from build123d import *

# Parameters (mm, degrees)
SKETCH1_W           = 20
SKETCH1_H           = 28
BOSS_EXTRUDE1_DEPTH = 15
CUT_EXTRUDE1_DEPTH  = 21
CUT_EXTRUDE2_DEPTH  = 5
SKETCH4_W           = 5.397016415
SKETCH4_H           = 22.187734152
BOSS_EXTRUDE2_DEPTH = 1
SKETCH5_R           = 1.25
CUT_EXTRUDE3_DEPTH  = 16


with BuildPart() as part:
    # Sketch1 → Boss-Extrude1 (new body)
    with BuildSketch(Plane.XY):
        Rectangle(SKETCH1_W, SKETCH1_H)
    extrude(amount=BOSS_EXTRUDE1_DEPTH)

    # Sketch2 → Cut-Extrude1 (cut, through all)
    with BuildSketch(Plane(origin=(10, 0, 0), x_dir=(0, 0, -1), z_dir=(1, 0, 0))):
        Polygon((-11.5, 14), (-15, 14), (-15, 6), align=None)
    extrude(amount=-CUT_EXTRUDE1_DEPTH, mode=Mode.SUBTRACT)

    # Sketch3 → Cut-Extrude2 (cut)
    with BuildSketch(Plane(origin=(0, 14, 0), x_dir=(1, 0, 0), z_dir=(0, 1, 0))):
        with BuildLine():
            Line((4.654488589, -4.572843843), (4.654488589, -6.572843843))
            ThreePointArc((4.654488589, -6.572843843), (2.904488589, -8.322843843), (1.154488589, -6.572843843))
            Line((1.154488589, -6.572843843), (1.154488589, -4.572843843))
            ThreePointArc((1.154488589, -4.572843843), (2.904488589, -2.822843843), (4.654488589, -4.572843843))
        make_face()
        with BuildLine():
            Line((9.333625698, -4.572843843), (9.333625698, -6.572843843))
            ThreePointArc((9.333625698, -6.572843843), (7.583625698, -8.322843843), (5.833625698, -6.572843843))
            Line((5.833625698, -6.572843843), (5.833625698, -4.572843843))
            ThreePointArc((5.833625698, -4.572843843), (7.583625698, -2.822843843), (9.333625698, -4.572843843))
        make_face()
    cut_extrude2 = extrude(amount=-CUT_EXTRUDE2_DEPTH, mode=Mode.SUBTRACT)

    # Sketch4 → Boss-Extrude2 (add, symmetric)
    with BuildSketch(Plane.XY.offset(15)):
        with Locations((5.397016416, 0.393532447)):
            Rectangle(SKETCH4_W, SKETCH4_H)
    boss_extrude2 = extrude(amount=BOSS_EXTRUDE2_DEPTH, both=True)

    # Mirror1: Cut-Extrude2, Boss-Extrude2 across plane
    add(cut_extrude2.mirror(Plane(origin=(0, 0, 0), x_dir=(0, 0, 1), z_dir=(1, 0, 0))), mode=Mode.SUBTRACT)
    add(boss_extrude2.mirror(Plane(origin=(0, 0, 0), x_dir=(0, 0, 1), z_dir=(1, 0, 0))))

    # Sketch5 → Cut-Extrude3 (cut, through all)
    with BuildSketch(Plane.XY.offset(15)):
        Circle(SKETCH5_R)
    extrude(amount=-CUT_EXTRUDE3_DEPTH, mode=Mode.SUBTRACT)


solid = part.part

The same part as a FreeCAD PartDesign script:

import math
import FreeCAD as App
import Part
import Sketcher

V = App.Vector


def add_polygon(sketch, points):
    """Adds a closed chain of lines whose ends are joined by coincident constraints."""
    first, n = sketch.GeometryCount, len(points)
    for a, b in zip(points, points[1:] + points[:1]):
        sketch.addGeometry(Part.LineSegment(App.Vector(*a, 0), App.Vector(*b, 0)), False)
    for i in range(n):
        sketch.addConstraint(Sketcher.Constraint("Coincident", first + i, 2, first + (i + 1) % n, 1))

doc = App.newDocument("Part")
body = doc.addObject("PartDesign::Body", "Body")

sketch1 = body.newObject("Sketcher::SketchObject", "Sketch")
sketch1.AttachmentSupport = (doc.getObject("XY_Plane"), [""])
sketch1.MapMode = "FlatFace"
add_polygon(sketch1, [(-10, 14), (-10, -14), (10, -14), (10, 14)])
sketch1.addConstraint(Sketcher.Constraint("Vertical", 0))
sketch1.addConstraint(Sketcher.Constraint("Horizontal", 1))
sketch1.addConstraint(Sketcher.Constraint("Vertical", 2))
sketch1.addConstraint(Sketcher.Constraint("Horizontal", 3))
sketch1.addConstraint(Sketcher.Constraint("Symmetric", 0, 2, 2, 2, -1, 1))
sketch1.addConstraint(Sketcher.Constraint("DistanceX", 1, 1, 1, 2, 20.0))
sketch1.addConstraint(Sketcher.Constraint("DistanceY", 0, 2, 0, 1, 28.0))
pad1 = body.newObject("PartDesign::Pad", "Pad")
pad1.Profile = sketch1
pad1.Length = 15

sketch2 = body.newObject("Sketcher::SketchObject", "Sketch001")
sketch2.AttachmentSupport = (doc.getObject("YZ_Plane"), [""])
sketch2.MapMode = "FlatFace"
sketch2.AttachmentOffset = App.Placement(V(0, 0, 10), App.Rotation())
add_polygon(sketch2, [(14, 11.5), (14, 15), (6, 15)])
sketch2.addConstraint(Sketcher.Constraint("Vertical", 0))
sketch2.addConstraint(Sketcher.Constraint("Horizontal", 1))
sketch2.addConstraint(Sketcher.Constraint("DistanceX", 1, 2, 1, 1, 8.0))
sketch2.addConstraint(Sketcher.Constraint("DistanceY", 0, 1, 0, 2, 3.5))
sketch2.addConstraint(Sketcher.Constraint("DistanceX", -1, 1, 0, 2, 14.0))
sketch2.addConstraint(Sketcher.Constraint("DistanceY", -1, 1, 0, 2, 15.0))
pocket1 = body.newObject("PartDesign::Pocket", "Pocket")
pocket1.Profile = sketch2
pocket1.Type = "ThroughAll"

sketch3 = body.newObject("Sketcher::SketchObject", "Sketch002")
sketch3.AttachmentSupport = (doc.getObject("XZ_Plane"), [""])
sketch3.MapMode = "FlatFace"
sketch3.AttachmentOffset = App.Placement(V(0, 0, -14), App.Rotation())
sketch3.addGeometry(Part.LineSegment(V(4.654489, 6.572844, 0), V(4.654489, 4.572844, 0)), False)
sketch3.addGeometry(Part.ArcOfCircle(Part.Circle(V(2.904489, 4.572844, 0), V(0, 0, 1), 1.75), math.radians(180), math.radians(360)), False)
sketch3.addGeometry(Part.LineSegment(V(1.154489, 4.572844, 0), V(1.154489, 6.572844, 0)), False)
sketch3.addGeometry(Part.ArcOfCircle(Part.Circle(V(2.904489, 6.572844, 0), V(0, 0, 1), 1.75), math.radians(0), math.radians(180)), False)
sketch3.addGeometry(Part.LineSegment(V(9.333626, 6.572844, 0), V(9.333626, 4.572844, 0)), False)
sketch3.addGeometry(Part.ArcOfCircle(Part.Circle(V(7.583626, 4.572844, 0), V(0, 0, 1), 1.75), math.radians(180), math.radians(360)), False)
sketch3.addGeometry(Part.LineSegment(V(5.833626, 4.572844, 0), V(5.833626, 6.572844, 0)), False)
sketch3.addGeometry(Part.ArcOfCircle(Part.Circle(V(7.583626, 6.572844, 0), V(0, 0, 1), 1.75), math.radians(0), math.radians(180)), False)
sketch3.addConstraint(Sketcher.Constraint("Tangent", 0, 2, 1, 2))
sketch3.addConstraint(Sketcher.Constraint("Tangent", 1, 1, 2, 1))
sketch3.addConstraint(Sketcher.Constraint("Tangent", 2, 2, 3, 2))
sketch3.addConstraint(Sketcher.Constraint("Tangent", 3, 1, 0, 1))
sketch3.addConstraint(Sketcher.Constraint("Tangent", 4, 2, 5, 2))
sketch3.addConstraint(Sketcher.Constraint("Tangent", 5, 1, 6, 1))
sketch3.addConstraint(Sketcher.Constraint("Tangent", 6, 2, 7, 2))
sketch3.addConstraint(Sketcher.Constraint("Tangent", 7, 1, 4, 1))
sketch3.addConstraint(Sketcher.Constraint("Vertical", 0))
sketch3.addConstraint(Sketcher.Constraint("Vertical", 2))
sketch3.addConstraint(Sketcher.Constraint("Vertical", 4))
sketch3.addConstraint(Sketcher.Constraint("Vertical", 6))
sketch3.addConstraint(Sketcher.Constraint("Equal", 3, 5))
sketch3.addConstraint(Sketcher.Constraint("Horizontal", 1, 3, 5, 3))
sketch3.addConstraint(Sketcher.Constraint("Horizontal", 3, 3, 7, 3))
sketch3.addConstraint(Sketcher.Constraint("DistanceY", 0, 2, 0, 1, 2.0))
sketch3.addConstraint(Sketcher.Constraint("Radius", 1, 1.75))
sketch3.addConstraint(Sketcher.Constraint("DistanceX", -1, 1, 1, 3, 2.904489))
sketch3.addConstraint(Sketcher.Constraint("DistanceY", -1, 1, 1, 3, 4.572844))
sketch3.addConstraint(Sketcher.Constraint("DistanceX", -1, 1, 5, 3, 7.583626))
pocket2 = body.newObject("PartDesign::Pocket", "Pocket001")
pocket2.Profile = sketch3
pocket2.Length = 5
pocket2.Reversed = True

sketch4 = body.newObject("Sketcher::SketchObject", "Sketch003")
sketch4.AttachmentSupport = (doc.getObject("XY_Plane"), [""])
sketch4.MapMode = "FlatFace"
sketch4.AttachmentOffset = App.Placement(V(0, 0, 15), App.Rotation())
add_polygon(sketch4, [(2.698508, 11.4874), (2.698508, -10.700335), (8.095525, -10.700335), (8.095525, 11.4874)])
sketch4.addConstraint(Sketcher.Constraint("Vertical", 0))
sketch4.addConstraint(Sketcher.Constraint("Horizontal", 1))
sketch4.addConstraint(Sketcher.Constraint("Vertical", 2))
sketch4.addConstraint(Sketcher.Constraint("Horizontal", 3))
sketch4.addConstraint(Sketcher.Constraint("DistanceY", -1, 1, 2, 2, 11.4874))
sketch4.addConstraint(Sketcher.Constraint("DistanceX", 1, 1, 1, 2, 5.397016))
sketch4.addConstraint(Sketcher.Constraint("DistanceY", 0, 2, 0, 1, 22.187734))
sketch4.addConstraint(Sketcher.Constraint("DistanceX", -1, 1, 0, 2, 2.698508))
pad2 = body.newObject("PartDesign::Pad", "Pad001")
pad2.Profile = sketch4
pad2.Length = 2
pad2.Midplane = True
doc.recompute()

mirrored = body.newObject("PartDesign::Mirrored", "Mirrored")
mirrored.Originals = [pocket2, pad2]
mirrored.MirrorPlane = (doc.getObject("YZ_Plane"), [""])
body.Tip = mirrored

sketch5 = body.newObject("Sketcher::SketchObject", "Sketch004")
sketch5.AttachmentSupport = (doc.getObject("XY_Plane"), [""])
sketch5.MapMode = "FlatFace"
sketch5.AttachmentOffset = App.Placement(V(0, 0, 15), App.Rotation())
sketch5.addGeometry(Part.Circle(V(0, 0, 0), V(0, 0, 1), 1.25), False)
sketch5.addConstraint(Sketcher.Constraint("Coincident", 0, 3, -1, 1))
sketch5.addConstraint(Sketcher.Constraint("Diameter", 0, 2.5))
pocket3 = body.newObject("PartDesign::Pocket", "Pocket002")
pocket3.Profile = sketch5
pocket3.Type = "ThroughAll"

doc.recompute()
